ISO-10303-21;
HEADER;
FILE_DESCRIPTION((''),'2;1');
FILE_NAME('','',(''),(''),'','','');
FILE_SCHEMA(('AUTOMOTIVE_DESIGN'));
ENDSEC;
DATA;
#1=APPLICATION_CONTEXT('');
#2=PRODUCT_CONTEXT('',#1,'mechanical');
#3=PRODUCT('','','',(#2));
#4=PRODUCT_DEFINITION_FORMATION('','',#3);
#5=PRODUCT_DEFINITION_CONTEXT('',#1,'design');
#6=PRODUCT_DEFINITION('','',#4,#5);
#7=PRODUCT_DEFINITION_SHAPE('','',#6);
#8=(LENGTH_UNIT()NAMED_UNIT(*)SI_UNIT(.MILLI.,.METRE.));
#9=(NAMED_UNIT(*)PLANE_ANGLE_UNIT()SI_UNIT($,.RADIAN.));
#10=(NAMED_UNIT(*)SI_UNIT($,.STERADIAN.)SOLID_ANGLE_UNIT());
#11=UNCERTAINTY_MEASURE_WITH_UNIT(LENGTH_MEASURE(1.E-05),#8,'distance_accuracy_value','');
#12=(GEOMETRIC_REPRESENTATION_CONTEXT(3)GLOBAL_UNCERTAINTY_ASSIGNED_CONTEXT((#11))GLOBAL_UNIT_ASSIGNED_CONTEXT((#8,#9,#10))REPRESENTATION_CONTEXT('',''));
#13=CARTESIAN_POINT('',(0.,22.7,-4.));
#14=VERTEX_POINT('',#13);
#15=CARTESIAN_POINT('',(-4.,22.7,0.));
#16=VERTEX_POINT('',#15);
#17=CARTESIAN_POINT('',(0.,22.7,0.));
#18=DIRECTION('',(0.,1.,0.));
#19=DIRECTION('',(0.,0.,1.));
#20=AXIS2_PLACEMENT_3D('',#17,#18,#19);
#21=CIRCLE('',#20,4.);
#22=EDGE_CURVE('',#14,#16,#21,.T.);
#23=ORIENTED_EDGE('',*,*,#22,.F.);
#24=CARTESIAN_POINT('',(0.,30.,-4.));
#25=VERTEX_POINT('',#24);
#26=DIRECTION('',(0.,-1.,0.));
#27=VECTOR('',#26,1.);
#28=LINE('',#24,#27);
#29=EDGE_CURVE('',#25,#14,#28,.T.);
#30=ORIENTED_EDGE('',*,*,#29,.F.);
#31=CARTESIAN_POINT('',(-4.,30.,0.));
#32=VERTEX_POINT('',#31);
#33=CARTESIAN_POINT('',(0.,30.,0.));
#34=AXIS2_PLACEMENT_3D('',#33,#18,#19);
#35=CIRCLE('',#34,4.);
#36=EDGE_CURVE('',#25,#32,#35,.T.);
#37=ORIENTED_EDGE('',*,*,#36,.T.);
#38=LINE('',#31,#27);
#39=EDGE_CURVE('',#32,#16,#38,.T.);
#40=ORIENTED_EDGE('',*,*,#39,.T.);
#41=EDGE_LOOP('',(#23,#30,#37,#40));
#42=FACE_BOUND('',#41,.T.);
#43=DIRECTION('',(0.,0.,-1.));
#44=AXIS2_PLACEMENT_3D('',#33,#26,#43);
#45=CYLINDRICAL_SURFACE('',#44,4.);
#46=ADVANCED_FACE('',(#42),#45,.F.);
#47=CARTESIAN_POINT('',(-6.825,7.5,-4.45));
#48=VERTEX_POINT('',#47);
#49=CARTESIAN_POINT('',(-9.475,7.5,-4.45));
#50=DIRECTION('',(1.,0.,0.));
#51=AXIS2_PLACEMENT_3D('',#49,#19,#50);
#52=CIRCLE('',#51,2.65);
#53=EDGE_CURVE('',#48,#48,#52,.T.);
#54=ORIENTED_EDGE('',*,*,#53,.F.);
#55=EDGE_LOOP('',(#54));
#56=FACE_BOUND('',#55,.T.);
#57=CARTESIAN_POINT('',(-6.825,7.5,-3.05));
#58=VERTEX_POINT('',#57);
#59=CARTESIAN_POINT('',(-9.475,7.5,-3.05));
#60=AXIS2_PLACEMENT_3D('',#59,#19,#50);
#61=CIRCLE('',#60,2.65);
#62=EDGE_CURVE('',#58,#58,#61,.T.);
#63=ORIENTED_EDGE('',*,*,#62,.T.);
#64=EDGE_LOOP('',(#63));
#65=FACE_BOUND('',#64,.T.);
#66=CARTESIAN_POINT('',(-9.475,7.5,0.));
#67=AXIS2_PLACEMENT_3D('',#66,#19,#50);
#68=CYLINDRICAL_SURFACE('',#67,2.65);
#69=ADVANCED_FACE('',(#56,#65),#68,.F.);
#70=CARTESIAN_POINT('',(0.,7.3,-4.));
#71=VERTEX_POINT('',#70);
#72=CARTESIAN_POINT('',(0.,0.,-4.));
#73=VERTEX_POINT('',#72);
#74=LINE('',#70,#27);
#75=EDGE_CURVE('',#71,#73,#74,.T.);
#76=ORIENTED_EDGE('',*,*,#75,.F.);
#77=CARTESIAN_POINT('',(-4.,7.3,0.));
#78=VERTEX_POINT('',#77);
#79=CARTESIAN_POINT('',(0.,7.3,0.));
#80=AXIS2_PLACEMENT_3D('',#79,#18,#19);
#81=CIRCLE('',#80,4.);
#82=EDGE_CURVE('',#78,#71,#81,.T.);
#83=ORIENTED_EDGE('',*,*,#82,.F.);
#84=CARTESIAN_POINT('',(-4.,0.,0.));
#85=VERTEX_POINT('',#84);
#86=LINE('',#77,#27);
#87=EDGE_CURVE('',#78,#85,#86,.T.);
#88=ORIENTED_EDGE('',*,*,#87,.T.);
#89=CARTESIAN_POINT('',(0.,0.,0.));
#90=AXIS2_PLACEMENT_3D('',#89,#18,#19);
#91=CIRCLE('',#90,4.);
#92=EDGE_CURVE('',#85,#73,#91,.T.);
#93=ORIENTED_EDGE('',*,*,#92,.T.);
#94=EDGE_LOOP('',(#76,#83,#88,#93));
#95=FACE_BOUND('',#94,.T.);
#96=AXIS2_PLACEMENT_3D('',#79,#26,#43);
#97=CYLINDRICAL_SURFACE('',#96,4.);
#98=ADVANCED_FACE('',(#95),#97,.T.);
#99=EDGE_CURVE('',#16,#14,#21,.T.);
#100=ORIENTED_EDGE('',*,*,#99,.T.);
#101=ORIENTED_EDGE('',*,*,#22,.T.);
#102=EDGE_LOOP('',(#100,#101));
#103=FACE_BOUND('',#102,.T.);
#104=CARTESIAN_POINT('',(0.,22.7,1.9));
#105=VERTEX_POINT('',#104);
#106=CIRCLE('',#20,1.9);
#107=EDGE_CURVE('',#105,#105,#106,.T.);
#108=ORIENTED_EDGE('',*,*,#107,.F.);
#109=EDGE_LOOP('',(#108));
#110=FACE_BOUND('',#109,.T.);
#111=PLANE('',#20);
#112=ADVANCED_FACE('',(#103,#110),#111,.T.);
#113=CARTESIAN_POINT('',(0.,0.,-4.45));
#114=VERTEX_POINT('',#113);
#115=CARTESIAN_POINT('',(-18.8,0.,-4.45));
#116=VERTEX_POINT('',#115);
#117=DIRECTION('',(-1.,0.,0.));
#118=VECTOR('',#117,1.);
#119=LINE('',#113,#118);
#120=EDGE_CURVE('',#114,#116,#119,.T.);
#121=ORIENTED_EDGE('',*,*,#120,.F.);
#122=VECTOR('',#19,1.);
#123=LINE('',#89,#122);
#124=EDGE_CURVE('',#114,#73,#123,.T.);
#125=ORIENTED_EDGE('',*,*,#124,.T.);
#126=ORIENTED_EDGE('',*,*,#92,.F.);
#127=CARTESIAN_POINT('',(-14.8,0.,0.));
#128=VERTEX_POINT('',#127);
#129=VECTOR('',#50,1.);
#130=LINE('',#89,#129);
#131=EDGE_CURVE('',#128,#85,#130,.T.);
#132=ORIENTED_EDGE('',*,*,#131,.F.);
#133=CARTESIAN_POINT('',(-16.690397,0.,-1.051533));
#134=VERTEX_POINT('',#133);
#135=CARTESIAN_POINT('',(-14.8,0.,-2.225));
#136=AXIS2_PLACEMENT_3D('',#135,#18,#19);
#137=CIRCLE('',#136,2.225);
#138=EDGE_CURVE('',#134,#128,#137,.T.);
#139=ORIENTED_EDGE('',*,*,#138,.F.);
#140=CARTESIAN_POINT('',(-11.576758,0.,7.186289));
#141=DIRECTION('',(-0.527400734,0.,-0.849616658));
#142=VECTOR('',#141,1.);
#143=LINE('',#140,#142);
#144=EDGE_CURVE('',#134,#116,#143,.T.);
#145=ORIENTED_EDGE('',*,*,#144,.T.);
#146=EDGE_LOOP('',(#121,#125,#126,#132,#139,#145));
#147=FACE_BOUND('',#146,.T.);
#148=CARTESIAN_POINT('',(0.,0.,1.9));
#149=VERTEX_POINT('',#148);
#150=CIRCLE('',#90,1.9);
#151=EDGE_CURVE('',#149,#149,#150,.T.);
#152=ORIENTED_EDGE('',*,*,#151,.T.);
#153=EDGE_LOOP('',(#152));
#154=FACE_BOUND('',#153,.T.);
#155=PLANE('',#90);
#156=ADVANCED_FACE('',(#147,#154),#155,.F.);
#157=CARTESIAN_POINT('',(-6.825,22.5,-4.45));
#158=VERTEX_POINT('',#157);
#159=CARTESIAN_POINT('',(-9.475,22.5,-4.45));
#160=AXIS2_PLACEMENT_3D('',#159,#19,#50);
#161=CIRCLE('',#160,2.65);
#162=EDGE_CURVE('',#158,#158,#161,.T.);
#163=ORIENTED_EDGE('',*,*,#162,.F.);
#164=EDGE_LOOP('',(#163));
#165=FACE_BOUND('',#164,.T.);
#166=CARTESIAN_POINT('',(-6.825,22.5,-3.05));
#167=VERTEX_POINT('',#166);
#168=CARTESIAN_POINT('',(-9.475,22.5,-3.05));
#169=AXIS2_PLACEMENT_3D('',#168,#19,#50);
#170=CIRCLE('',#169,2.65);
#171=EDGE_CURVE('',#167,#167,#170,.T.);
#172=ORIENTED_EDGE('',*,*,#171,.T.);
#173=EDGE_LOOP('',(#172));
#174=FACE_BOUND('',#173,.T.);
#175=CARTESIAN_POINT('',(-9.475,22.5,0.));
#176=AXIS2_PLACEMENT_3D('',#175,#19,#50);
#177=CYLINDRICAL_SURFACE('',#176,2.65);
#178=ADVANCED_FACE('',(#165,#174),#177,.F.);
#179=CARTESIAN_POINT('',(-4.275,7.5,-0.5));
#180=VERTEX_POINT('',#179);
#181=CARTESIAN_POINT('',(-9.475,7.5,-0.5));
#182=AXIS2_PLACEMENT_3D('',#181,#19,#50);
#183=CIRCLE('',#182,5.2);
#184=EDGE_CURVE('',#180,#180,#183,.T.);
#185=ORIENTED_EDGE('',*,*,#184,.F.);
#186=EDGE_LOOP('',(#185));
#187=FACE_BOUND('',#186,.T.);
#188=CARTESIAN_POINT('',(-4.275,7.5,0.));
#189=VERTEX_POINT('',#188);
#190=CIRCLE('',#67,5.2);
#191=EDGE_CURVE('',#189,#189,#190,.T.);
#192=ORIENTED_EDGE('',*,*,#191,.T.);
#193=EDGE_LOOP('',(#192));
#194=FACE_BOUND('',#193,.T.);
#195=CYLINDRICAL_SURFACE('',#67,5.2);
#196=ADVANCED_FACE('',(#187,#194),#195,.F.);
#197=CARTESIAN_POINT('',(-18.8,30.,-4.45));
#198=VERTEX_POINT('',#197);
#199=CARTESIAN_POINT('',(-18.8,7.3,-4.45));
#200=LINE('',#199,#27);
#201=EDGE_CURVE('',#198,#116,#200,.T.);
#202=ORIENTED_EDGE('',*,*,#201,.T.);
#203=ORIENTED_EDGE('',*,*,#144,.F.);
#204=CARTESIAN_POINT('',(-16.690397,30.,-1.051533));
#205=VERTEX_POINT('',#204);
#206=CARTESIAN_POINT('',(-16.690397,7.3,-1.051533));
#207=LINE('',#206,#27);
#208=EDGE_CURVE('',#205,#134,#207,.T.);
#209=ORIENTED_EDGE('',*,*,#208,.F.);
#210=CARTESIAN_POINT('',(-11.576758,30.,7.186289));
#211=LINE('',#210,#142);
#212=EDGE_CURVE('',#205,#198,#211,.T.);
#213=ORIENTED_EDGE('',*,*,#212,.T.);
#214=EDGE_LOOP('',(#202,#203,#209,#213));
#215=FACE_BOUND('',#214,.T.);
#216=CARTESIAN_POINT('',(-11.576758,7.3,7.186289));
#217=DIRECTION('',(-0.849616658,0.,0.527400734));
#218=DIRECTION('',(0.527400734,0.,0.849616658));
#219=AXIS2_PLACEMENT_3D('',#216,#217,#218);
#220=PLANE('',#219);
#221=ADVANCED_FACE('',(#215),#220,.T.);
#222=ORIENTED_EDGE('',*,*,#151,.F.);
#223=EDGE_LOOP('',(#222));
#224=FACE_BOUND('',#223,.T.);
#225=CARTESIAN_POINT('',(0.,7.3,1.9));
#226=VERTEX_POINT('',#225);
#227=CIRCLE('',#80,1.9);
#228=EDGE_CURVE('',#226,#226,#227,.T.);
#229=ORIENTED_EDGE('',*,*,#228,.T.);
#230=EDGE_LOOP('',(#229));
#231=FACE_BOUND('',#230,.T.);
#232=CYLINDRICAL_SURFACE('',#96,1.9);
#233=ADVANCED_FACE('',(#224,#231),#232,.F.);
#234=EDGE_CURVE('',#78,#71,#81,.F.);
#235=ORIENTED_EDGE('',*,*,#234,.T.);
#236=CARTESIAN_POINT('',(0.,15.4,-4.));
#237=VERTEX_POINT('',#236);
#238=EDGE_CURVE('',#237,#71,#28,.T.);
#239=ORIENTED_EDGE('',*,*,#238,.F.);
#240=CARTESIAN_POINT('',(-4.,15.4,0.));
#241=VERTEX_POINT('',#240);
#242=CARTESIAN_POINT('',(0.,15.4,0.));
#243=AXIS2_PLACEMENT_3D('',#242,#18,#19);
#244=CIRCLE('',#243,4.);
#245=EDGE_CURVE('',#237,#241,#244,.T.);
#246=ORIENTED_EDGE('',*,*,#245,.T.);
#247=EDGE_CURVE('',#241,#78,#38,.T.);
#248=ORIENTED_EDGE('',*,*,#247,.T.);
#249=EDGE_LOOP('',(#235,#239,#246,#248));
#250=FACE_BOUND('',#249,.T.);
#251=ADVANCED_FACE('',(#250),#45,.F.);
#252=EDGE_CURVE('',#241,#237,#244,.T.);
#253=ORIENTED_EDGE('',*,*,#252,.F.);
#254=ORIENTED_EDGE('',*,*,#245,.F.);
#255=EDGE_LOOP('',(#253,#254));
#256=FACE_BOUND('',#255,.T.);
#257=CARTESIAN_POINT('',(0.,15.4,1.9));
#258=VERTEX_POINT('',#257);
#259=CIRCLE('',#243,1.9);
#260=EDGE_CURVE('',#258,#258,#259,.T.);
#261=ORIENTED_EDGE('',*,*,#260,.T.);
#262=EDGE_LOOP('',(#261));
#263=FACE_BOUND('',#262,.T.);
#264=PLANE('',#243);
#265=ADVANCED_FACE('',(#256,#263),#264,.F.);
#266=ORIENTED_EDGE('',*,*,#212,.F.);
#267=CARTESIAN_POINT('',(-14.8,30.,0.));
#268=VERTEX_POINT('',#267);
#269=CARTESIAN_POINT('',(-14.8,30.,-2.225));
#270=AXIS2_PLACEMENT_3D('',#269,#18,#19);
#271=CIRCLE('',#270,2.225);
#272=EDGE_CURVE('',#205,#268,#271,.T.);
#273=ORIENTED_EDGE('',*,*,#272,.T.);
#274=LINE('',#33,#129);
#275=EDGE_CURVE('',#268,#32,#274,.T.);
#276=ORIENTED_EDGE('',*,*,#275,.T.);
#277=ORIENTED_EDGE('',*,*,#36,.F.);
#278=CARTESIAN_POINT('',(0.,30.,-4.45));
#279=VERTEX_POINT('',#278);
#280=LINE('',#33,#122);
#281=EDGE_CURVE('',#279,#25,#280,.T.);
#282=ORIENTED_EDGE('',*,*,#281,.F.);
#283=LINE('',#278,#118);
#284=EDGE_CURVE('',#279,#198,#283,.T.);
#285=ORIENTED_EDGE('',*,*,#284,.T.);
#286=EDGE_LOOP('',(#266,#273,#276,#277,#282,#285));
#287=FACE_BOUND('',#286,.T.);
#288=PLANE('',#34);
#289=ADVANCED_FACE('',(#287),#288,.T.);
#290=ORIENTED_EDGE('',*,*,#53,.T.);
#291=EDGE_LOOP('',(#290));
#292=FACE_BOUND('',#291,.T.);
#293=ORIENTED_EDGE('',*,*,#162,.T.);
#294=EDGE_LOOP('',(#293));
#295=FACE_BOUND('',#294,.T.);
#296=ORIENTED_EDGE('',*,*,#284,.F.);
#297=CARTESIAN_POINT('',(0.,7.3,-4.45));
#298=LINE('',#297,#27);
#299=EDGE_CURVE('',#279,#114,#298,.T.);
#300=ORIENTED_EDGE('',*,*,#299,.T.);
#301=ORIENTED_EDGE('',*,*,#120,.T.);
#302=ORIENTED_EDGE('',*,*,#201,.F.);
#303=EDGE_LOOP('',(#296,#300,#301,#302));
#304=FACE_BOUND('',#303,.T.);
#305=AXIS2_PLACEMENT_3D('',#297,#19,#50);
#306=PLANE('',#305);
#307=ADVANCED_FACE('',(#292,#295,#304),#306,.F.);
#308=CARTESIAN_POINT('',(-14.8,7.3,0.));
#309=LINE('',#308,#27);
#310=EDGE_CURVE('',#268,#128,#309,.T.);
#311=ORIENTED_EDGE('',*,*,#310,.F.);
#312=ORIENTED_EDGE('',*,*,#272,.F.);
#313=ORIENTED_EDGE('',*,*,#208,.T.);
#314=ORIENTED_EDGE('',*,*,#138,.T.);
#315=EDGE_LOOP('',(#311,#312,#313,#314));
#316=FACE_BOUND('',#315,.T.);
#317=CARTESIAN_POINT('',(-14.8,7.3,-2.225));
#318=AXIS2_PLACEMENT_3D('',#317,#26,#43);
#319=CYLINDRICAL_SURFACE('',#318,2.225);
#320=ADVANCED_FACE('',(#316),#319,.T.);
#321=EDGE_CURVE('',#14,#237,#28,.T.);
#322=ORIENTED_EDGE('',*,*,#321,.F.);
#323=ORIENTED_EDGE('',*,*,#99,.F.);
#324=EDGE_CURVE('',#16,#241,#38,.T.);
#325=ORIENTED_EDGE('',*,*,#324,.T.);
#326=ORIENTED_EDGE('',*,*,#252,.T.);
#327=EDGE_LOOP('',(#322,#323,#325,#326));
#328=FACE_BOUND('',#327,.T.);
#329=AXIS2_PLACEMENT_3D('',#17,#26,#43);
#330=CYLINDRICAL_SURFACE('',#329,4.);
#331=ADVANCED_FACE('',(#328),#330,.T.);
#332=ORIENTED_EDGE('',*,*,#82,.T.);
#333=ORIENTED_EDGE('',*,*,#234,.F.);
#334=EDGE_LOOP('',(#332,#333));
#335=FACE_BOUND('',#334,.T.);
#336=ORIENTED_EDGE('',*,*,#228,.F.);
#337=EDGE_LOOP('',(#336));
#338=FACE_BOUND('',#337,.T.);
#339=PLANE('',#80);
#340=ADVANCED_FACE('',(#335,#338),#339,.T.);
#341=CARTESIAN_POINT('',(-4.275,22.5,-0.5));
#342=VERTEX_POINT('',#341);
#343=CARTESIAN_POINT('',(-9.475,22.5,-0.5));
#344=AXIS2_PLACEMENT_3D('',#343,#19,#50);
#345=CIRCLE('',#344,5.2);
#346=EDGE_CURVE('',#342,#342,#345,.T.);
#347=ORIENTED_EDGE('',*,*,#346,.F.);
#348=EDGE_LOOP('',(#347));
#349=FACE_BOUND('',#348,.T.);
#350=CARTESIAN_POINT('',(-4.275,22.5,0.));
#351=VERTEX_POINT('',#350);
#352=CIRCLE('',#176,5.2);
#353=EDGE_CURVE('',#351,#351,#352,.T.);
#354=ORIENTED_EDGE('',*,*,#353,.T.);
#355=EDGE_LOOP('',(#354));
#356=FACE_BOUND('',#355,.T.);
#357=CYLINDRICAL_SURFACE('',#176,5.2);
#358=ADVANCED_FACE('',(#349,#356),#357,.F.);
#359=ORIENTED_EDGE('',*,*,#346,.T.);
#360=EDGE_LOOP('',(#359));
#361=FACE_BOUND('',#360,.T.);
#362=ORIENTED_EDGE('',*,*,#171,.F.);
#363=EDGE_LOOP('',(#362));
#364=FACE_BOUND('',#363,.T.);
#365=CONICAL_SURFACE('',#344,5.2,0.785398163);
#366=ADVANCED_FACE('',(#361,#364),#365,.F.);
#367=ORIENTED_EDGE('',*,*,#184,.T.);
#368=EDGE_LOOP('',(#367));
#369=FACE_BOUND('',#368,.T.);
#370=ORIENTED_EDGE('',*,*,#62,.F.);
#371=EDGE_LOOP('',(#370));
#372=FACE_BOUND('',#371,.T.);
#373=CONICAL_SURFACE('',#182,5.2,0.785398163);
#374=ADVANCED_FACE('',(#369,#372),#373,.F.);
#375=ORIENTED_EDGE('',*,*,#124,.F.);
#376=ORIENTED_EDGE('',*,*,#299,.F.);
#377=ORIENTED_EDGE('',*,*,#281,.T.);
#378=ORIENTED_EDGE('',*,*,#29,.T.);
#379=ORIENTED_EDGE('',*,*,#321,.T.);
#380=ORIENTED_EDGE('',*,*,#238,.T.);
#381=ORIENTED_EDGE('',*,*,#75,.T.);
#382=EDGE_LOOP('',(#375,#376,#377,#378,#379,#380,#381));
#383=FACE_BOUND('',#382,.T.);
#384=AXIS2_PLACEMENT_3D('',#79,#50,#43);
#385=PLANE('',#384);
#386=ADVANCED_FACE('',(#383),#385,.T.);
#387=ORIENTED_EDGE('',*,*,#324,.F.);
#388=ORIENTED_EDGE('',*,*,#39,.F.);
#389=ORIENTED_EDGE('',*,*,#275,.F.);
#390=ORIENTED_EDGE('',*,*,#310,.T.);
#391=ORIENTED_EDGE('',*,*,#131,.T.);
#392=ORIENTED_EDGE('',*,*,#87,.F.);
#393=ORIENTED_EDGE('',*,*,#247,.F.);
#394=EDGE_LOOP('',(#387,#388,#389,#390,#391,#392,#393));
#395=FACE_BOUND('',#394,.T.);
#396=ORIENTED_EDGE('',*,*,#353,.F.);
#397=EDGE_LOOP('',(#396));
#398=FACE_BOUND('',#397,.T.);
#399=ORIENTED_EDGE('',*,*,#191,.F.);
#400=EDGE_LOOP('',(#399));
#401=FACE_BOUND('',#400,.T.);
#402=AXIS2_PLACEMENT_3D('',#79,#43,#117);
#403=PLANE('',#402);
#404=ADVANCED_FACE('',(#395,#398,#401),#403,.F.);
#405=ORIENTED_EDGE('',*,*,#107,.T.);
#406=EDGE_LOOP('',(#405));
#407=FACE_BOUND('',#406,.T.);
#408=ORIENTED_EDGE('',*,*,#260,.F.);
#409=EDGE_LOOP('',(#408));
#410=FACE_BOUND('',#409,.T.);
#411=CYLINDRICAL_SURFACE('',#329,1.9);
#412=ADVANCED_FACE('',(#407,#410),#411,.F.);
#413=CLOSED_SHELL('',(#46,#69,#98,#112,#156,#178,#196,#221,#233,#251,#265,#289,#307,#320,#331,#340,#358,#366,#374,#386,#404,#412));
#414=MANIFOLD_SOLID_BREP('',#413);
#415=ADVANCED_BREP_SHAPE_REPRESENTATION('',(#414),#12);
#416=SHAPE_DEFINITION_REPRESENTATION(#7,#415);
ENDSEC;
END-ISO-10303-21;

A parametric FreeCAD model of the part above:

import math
import FreeCAD as App
import Part
import Sketcher

V = App.Vector
Q = App.Units.Quantity


def add_polygon(sketch, points):
    """Adds a closed chain of lines whose ends are joined by coincident constraints."""
    first, n = sketch.GeometryCount, len(points)
    for a, b in zip(points, points[1:] + points[:1]):
        sketch.addGeometry(Part.LineSegment(App.Vector(*a, 0), App.Vector(*b, 0)), False)
    for i in range(n):
        sketch.addConstraint(Sketcher.Constraint("Coincident", first + i, 2, first + (i + 1) % n, 1))

doc = App.newDocument("Part")
body = doc.addObject("PartDesign::Body", "Body")

# Sketch on XZ plane
sketch1 = body.newObject("Sketcher::SketchObject", "Sketch")
sketch1.AttachmentSupport = (doc.getObject("XZ_Plane"), [""])
sketch1.MapMode = "FlatFace"
sketch1.addGeometry([
    Part.LineSegment(V(0, -4, 0), V(0, -4.45, 0)),  # 0
    Part.LineSegment(V(0, -4.45, 0), V(-18.8, -4.45, 0)),  # 1
    Part.LineSegment(V(-18.8, -4.45, 0), V(-16.69, -1.05, 0)),  # 2
    Part.ArcOfCircle(Part.Circle(V(-14.8, -2.23, 0), V(0, 0, 1), 2.23), math.radians(90), math.radians(148)),  # 3
    Part.LineSegment(V(-14.8, 0, 0), V(-4, 0, 0)),  # 4
    Part.ArcOfCircle(Part.Circle(V(0, 0, 0), V(0, 0, 1), 4), math.radians(-90), math.radians(180)),  # 5
    Part.Circle(V(0, 0, 0), V(0, 0, 1), 1.9),  # 6
], False)
sketch1.addConstraint([
    Sketcher.Constraint("Coincident", 0, 2, 1, 1),
    Sketcher.Constraint("Coincident", 1, 2, 2, 1),
    Sketcher.Constraint("Tangent", 2, 2, 3, 2),
    Sketcher.Constraint("Tangent", 3, 1, 4, 1),
    Sketcher.Constraint("Coincident", 4, 2, 5, 2),
    Sketcher.Constraint("Coincident", 5, 1, 0, 1),
    Sketcher.Constraint("Vertical", 0),
    Sketcher.Constraint("Horizontal", 1),
    Sketcher.Constraint("Horizontal", 4),
    Sketcher.Constraint("Coincident", 5, 3, -1, 1),
    Sketcher.Constraint("Coincident", 6, 3, -1, 1),
    Sketcher.Constraint("PointOnObject", 0, 2, -2),
    Sketcher.Constraint("PointOnObject", 3, 1, -1),
    Sketcher.Constraint("Radius", 5, Q("4 mm")),
    Sketcher.Constraint("Diameter", 6, Q("3.8 mm")),
    Sketcher.Constraint("Distance", 2, Q("4 mm")),
    Sketcher.Constraint("DistanceX", 1, 2, 1, 1, Q("18.8 mm")),
    Sketcher.Constraint("DistanceX", 4, 1, 4, 2, Q("10.8 mm")),
    Sketcher.Constraint("Radius", 3, Q("2.225 mm")),
])
pad1 = body.newObject("PartDesign::Pad", "Pad")
pad1.Profile = sketch1
pad1.Length = 7.3
pad1.Reversed = True

# Sketch on XZ plane
sketch2 = body.newObject("Sketcher::SketchObject", "Sketch001")
sketch2.AttachmentSupport = (doc.getObject("XZ_Plane"), [""])
sketch2.MapMode = "FlatFace"
sketch2.addGeometry([
    Part.LineSegment(V(0, -4, 0), V(0, -4.45, 0)),  # 0
    Part.LineSegment(V(0, -4.45, 0), V(-18.8, -4.45, 0)),  # 1
    Part.LineSegment(V(-18.8, -4.45, 0), V(-16.69, -1.05, 0)),  # 2
    Part.ArcOfCircle(Part.Circle(V(-14.8, -2.23, 0), V(0, 0, 1), 2.23), math.radians(90), math.radians(148)),  # 3
    Part.LineSegment(V(-14.8, 0, 0), V(-4, 0, 0)),  # 4
    Part.ArcOfCircle(Part.Circle(V(0, 0, 0), V(0, 0, 1), 4), math.radians(180), math.radians(270)),  # 5
], False)
sketch2.addConstraint([
    Sketcher.Constraint("Coincident", 0, 2, 1, 1),
    Sketcher.Constraint("Coincident", 1, 2, 2, 1),
    Sketcher.Constraint("Tangent", 2, 2, 3, 2),
    Sketcher.Constraint("Tangent", 3, 1, 4, 1),
    Sketcher.Constraint("Coincident", 4, 2, 5, 1),
    Sketcher.Constraint("Coincident", 5, 2, 0, 1),
    Sketcher.Constraint("Vertical", 0),
    Sketcher.Constraint("Horizontal", 1),
    Sketcher.Constraint("Horizontal", 4),
    Sketcher.Constraint("Coincident", 5, 3, -1, 1),
    Sketcher.Constraint("PointOnObject", 0, 2, -2),
    Sketcher.Constraint("PointOnObject", 3, 1, -1),
    Sketcher.Constraint("Radius", 5, Q("4 mm")),
    Sketcher.Constraint("Distance", 2, Q("4 mm")),
    Sketcher.Constraint("DistanceX", 1, 2, 1, 1, Q("18.8 mm")),
    Sketcher.Constraint("DistanceX", 4, 1, 4, 2, Q("10.8 mm")),
    Sketcher.Constraint("Radius", 3, Q("2.225 mm")),
])
pad2 = body.newObject("PartDesign::Pad", "Pad001")
pad2.Profile = sketch2
pad2.Length = 30
pad2.Reversed = True

# Sketch on XZ plane
sketch3 = body.newObject("Sketcher::SketchObject", "Sketch002")
sketch3.AttachmentSupport = (doc.getObject("XZ_Plane"), [""])
sketch3.MapMode = "FlatFace"
sketch3.AttachmentOffset = App.Placement(V(0, 0, -15.4), App.Rotation())
sketch3.addGeometry([
    Part.Circle(V(0, 0, 0), V(0, 0, 1), 4),
    Part.Circle(V(0, 0, 0), V(0, 0, 1), 1.9),
], False)
sketch3.addConstraint([
    Sketcher.Constraint("Coincident", 0, 3, -1, 1),
    Sketcher.Constraint("Coincident", 1, 3, -1, 1),
    Sketcher.Constraint("Diameter", 0, Q("8 mm")),
    Sketcher.Constraint("Diameter", 1, Q("3.8 mm")),
])
pad3 = body.newObject("PartDesign::Pad", "Pad002")
pad3.Profile = sketch3
pad3.Length = 7.3
pad3.Reversed = True

# Sketch on YZ plane
sketch4 = body.newObject("Sketcher::SketchObject", "Sketch003")
sketch4.AttachmentSupport = (doc.getObject("YZ_Plane"), [""])
sketch4.MapMode = "FlatFace"
sketch4.AttachmentOffset = App.Placement(V(0, 0, -9.475), App.Rotation())
add_polygon(sketch4, [(22.5, -4.5), (22.5, 0), (17.3, 0), (17.3, -0.5), (19.9, -3), (19.9, -4.5)])  # lines 0-5
sketch4.addGeometry(Part.LineSegment(V(22.5, 0, 0), V(22.5, -4.5, 0)), True)  # axis
sketch4.addConstraint([
    Sketcher.Constraint("Vertical", 0),
    Sketcher.Constraint("Horizontal", 1),
    Sketcher.Constraint("Vertical", 2),
    Sketcher.Constraint("Vertical", 4),
    Sketcher.Constraint("Horizontal", 5),
    Sketcher.Constraint("Vertical", 6),
    Sketcher.Constraint("Coincident", 6, 1, 0, 2),
    Sketcher.Constraint("PointOnObject", 0, 2, -1),
    Sketcher.Constraint("Horizontal", 4, 2, 6, 2),
    Sketcher.Constraint("Angle", 3, Q("-45 deg")),
    Sketcher.Constraint("DistanceX", 1, 2, 1, 1, Q("5.2 mm")),
    Sketcher.Constraint("DistanceY", 2, 2, 2, 1, Q("0.5 mm")),
    Sketcher.Constraint("DistanceY", 4, 2, 4, 1, Q("1.4 mm")),
    Sketcher.Constraint("DistanceX", 5, 1, 5, 2, Q("2.65 mm")),
    Sketcher.Constraint("DistanceX", -1, 1, 0, 2, Q("22.5 mm")),
])
groove = body.newObject("PartDesign::Groove", "Groove")
groove.Profile = sketch4
groove.ReferenceAxis = (sketch4, ["Axis0"])
groove.Angle = 360
doc.recompute()

linearpattern = body.newObject("PartDesign::LinearPattern", "LinearPattern")
linearpattern.Originals = [groove]
linearpattern.Direction = (doc.getObject("Y_Axis"), [""])
linearpattern.Mode = "offset"
linearpattern.Offset = 15
linearpattern.Occurrences = 2
linearpattern.Reversed = True
body.Tip = linearpattern

doc.recompute()
